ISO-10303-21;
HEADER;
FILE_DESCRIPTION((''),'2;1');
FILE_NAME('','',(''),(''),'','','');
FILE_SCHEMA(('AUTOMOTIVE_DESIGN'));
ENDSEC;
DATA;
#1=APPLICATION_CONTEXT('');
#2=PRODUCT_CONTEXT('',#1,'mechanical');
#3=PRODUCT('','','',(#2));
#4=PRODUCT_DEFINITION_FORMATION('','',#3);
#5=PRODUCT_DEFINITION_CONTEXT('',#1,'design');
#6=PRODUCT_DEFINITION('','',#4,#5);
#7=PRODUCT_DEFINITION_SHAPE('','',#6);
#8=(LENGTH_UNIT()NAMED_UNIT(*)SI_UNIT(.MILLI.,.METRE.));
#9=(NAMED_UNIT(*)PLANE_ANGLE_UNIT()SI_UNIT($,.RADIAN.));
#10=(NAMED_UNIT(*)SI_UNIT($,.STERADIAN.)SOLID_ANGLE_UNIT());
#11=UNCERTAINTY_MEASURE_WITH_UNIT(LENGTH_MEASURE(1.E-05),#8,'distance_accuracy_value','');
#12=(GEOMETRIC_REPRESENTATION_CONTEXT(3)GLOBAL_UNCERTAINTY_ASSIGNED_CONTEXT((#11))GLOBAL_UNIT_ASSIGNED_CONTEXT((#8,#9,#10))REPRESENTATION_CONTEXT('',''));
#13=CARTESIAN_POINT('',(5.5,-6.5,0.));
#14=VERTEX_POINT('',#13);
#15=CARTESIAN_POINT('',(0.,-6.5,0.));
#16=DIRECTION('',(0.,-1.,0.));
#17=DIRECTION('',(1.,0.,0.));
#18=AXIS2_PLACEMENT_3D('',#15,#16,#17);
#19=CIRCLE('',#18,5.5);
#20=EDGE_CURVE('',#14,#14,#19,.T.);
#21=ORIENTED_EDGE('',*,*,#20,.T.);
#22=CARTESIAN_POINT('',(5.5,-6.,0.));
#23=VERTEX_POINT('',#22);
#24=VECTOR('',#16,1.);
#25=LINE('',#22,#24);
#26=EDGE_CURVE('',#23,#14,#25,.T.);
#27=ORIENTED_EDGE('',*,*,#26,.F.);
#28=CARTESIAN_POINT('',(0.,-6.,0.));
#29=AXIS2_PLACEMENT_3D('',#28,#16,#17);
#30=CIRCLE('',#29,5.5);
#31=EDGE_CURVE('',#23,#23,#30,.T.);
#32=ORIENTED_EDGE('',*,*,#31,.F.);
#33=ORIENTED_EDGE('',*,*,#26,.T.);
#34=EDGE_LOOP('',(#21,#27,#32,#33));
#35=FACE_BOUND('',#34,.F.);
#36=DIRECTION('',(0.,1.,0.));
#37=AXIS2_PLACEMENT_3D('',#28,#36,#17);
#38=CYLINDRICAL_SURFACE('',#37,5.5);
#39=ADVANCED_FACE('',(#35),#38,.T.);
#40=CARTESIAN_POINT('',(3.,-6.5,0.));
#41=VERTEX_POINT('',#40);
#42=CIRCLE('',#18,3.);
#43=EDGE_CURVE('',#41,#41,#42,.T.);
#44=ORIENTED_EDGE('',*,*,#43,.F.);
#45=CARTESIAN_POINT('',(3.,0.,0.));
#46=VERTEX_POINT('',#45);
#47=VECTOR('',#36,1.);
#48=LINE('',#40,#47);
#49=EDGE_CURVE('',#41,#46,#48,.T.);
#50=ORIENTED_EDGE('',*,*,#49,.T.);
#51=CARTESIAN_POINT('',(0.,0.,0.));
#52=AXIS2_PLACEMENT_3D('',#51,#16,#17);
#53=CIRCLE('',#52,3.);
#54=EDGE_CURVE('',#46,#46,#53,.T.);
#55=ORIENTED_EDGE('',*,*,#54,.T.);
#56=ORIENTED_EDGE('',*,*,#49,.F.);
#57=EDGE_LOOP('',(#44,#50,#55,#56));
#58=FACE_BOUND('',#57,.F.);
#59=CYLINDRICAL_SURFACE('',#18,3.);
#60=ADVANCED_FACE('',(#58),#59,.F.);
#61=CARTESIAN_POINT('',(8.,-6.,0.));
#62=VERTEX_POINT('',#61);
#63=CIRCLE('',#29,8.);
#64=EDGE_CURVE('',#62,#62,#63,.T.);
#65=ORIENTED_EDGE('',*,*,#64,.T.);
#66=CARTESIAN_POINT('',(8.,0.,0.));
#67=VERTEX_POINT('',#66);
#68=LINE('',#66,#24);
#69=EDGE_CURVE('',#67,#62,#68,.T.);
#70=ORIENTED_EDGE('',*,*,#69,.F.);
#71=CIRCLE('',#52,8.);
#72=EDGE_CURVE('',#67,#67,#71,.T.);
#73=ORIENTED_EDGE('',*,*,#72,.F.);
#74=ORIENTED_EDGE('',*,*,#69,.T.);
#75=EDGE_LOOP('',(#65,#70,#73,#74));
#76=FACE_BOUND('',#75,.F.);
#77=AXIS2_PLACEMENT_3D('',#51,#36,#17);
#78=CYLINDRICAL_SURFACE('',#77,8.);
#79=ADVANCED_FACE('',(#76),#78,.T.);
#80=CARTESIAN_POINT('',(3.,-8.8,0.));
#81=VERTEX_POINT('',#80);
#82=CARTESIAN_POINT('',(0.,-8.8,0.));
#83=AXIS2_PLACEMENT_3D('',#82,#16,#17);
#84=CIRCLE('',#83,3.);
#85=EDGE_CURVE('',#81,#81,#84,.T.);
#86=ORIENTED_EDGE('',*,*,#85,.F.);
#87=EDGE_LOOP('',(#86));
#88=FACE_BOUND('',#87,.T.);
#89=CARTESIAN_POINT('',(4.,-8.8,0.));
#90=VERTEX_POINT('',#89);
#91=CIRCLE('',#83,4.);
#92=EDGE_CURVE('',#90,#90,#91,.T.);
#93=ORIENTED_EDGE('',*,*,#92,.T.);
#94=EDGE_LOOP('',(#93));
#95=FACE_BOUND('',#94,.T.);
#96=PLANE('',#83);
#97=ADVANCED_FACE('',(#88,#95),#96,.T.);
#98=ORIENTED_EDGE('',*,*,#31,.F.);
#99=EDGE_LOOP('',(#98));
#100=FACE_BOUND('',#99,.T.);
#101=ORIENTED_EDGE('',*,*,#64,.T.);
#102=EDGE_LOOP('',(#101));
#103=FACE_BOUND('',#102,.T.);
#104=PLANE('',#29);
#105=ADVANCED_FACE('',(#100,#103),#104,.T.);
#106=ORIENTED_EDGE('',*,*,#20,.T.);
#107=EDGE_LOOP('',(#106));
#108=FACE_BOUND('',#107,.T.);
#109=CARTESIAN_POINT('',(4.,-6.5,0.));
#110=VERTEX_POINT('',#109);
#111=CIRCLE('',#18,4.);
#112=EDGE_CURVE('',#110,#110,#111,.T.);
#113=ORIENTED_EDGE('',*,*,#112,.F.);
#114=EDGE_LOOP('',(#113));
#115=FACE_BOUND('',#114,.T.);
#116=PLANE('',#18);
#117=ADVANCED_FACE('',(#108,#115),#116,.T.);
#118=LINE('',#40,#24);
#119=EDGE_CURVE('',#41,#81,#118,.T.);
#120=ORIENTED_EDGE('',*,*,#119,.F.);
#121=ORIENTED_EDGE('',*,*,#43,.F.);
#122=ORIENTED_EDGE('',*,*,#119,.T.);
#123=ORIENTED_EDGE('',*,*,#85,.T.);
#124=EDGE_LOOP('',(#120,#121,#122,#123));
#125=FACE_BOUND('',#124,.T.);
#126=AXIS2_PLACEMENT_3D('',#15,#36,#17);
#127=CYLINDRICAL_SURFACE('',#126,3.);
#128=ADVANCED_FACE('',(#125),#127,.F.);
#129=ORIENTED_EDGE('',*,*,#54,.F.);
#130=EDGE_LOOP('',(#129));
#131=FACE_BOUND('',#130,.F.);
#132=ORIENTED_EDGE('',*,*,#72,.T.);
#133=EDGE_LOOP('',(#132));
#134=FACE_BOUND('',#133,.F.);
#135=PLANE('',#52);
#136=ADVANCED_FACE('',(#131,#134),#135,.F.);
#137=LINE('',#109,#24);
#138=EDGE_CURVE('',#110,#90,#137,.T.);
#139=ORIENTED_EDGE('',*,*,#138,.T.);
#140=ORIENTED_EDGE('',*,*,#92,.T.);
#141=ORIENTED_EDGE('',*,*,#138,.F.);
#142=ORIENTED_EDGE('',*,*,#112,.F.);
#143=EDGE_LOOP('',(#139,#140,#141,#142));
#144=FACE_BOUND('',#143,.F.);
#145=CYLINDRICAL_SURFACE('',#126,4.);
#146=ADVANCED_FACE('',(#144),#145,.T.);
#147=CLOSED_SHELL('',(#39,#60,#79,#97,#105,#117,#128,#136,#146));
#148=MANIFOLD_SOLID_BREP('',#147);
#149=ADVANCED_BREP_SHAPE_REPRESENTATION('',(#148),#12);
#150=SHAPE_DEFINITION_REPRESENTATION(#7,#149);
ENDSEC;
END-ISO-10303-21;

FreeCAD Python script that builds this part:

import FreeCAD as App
import Part
import Sketcher
from FreeCAD import Vector

doc = App.newDocument("Part")
body = doc.addObject("PartDesign::Body", "Body")

# Sketch on XZ plane
sketch1 = body.newObject("Sketcher::SketchObject", "Sketch")
sketch1.AttachmentSupport = (doc.getObject("XZ_Plane"), [""])
sketch1.MapMode = "FlatFace"
sketch1.addGeometry(Part.Circle(Vector(0, 0, 0), Vector(0, 0, 1), 8), False)
sketch1.addConstraint(Sketcher.Constraint("Coincident", 0, 3, -1, 1))
sketch1.addConstraint(Sketcher.Constraint("Diameter", 0, 16.0))
pad1 = body.newObject("PartDesign::Pad", "Pad")
pad1.Profile = sketch1
pad1.Length = 6

# Sketch on XZ plane
sketch2 = body.newObject("Sketcher::SketchObject", "Sketch001")
sketch2.AttachmentSupport = (doc.getObject("XZ_Plane"), [""])
sketch2.MapMode = "FlatFace"
sketch2.AttachmentOffset = App.Placement(Vector(0, 0, 6), App.Rotation())
sketch2.addGeometry(Part.Circle(Vector(0, 0, 0), Vector(0, 0, 1), 5.5), False)
sketch2.addConstraint(Sketcher.Constraint("Coincident", 0, 3, -1, 1))
sketch2.addConstraint(Sketcher.Constraint("Diameter", 0, 11.0))
pad2 = body.newObject("PartDesign::Pad", "Pad001")
pad2.Profile = sketch2
pad2.Length = 0.5

# Sketch on XZ plane
sketch3 = body.newObject("Sketcher::SketchObject", "Sketch002")
sketch3.AttachmentSupport = (doc.getObject("XZ_Plane"), [""])
sketch3.MapMode = "FlatFace"
sketch3.AttachmentOffset = App.Placement(Vector(0, 0, 6.5), App.Rotation())
sketch3.addGeometry(Part.Circle(Vector(0, 0, 0), Vector(0, 0, 1), 4), False)
sketch3.addGeometry(Part.Circle(Vector(0, 0, 0), Vector(0, 0, 1), 3), False)
sketch3.addConstraint(Sketcher.Constraint("Coincident", 0, 3, -1, 1))
sketch3.addConstraint(Sketcher.Constraint("Coincident", 1, 3, -1, 1))
sketch3.addConstraint(Sketcher.Constraint("Diameter", 0, 8.0))
sketch3.addConstraint(Sketcher.Constraint("Diameter", 1, 6.0))
pad3 = body.newObject("PartDesign::Pad", "Pad002")
pad3.Profile = sketch3
pad3.Length = 2.3

# Sketch on XZ plane
sketch4 = body.newObject("Sketcher::SketchObject", "Sketch003")
sketch4.AttachmentSupport = (doc.getObject("XZ_Plane"), [""])
sketch4.MapMode = "FlatFace"
sketch4.AttachmentOffset = App.Placement(Vector(0, 0, 6.5), App.Rotation())
sketch4.addGeometry(Part.Circle(Vector(0, 0, 0), Vector(0, 0, 1), 3), False)
sketch4.addConstraint(Sketcher.Constraint("Coincident", 0, 3, -1, 1))
sketch4.addConstraint(Sketcher.Constraint("Diameter", 0, 6.0))
pocket1 = body.newObject("PartDesign::Pocket", "Pocket")
pocket1.Profile = sketch4
pocket1.Type = "ThroughAll"

doc.recompute()
